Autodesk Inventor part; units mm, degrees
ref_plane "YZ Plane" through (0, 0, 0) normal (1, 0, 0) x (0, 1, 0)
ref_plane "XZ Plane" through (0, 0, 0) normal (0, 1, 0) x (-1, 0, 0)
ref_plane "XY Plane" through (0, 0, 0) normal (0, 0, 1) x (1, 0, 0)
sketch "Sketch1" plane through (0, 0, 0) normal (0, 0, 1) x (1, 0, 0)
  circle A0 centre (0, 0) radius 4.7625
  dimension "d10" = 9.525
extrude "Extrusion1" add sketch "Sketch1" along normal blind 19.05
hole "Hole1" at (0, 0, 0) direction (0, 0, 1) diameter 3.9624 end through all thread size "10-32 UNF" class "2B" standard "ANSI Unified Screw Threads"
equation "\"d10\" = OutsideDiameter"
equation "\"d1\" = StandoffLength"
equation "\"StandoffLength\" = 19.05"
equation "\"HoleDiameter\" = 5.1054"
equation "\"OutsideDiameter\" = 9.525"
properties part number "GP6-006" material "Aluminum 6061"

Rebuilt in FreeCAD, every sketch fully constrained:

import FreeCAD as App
import Part
import Sketcher

V = App.Vector
Q = App.Units.Quantity

doc = App.newDocument("Part")
params = doc.addObject("Spreadsheet::Sheet", "Params")
for row, (alias, value) in enumerate([
    ("sketch1_diameter", "0.375 in"),
    ("pad1_length", "0.75 in"),
    ("sketch2_diameter", "0.156 in"),
    ("hole_diameter", "0.156 in"),
], start=1):
    params.set(f"A{row}", alias)
    params.set(f"B{row}", "=" + value)
    params.setAlias(f"B{row}", alias)

body = doc.addObject("PartDesign::Body", "Body")

# Sketch on XY plane
sketch1 = body.newObject("Sketcher::SketchObject", "Sketch")
sketch1.AttachmentSupport = (doc.getObject("XY_Plane"), [""])
sketch1.MapMode = "FlatFace"
sketch1.addGeometry(Part.Circle(V(0, 0, 0), V(0, 0, 1), 4.8), False)
sketch1.addConstraint(Sketcher.Constraint("Coincident", 0, 3, -1, 1))
sketch1.addConstraint(Sketcher.Constraint("Diameter", 0, Q("0.375 in")))
sketch1.setExpression("Constraints[1]", "Params.sketch1_diameter")
pad1 = body.newObject("PartDesign::Pad", "Pad")
pad1.Profile = sketch1
pad1.setExpression("Length", "Params.pad1_length")

# Sketch on XY plane
sketch2 = body.newObject("Sketcher::SketchObject", "Sketch001")
sketch2.AttachmentSupport = (doc.getObject("XY_Plane"), [""])
sketch2.MapMode = "FlatFace"
sketch2.addGeometry(Part.Circle(V(0, 0, 0), V(0, 0, 1), 2), False)
sketch2.addConstraint(Sketcher.Constraint("Coincident", 0, 3, -1, 1))
sketch2.addConstraint(Sketcher.Constraint("Diameter", 0, Q("0.156 in")))
sketch2.setExpression("Constraints[1]", "Params.sketch2_diameter")
doc.recompute()
hole = body.newObject("PartDesign::Hole", "Hole")
hole.Profile = sketch2
hole.ThreadType = "None"
hole.setExpression("Diameter", "Params.hole_diameter")
hole.DepthType = "ThroughAll"
hole.Reversed = True

doc.recompute()
